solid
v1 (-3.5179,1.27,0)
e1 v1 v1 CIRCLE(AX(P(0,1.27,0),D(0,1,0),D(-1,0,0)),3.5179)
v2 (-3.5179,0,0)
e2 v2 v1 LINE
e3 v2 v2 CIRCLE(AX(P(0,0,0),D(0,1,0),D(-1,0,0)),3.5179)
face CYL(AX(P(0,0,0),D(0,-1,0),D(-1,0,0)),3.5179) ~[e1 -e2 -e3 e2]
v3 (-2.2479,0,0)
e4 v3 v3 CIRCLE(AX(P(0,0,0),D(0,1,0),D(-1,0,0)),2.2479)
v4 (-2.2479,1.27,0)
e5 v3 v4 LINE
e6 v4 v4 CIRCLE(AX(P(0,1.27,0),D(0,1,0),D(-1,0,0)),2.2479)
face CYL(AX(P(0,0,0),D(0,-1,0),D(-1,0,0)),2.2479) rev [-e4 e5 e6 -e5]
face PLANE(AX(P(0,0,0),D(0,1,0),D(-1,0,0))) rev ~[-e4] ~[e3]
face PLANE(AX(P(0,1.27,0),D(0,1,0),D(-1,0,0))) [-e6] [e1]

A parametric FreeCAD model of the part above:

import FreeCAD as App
import Part
import Sketcher
Q = App.Units.Quantity

doc = App.newDocument("Part")
body = doc.addObject("PartDesign::Body", "Body")

# Sketch on XZ plane
sketch1 = body.newObject("Sketcher::SketchObject", "Sketch")
sketch1.AttachmentSupport = (doc.getObject("XZ_Plane"), [""])
sketch1.MapMode = "FlatFace"
sketch1.addGeometry([
    Part.Circle(App.Vector(0, 0, 0), App.Vector(0, 0, 1), 3.5),
    Part.Circle(App.Vector(0, 0, 0), App.Vector(0, 0, 1), 2.2),
], False)
sketch1.addConstraint([
    Sketcher.Constraint("Coincident", 0, 3, -1, 1),
    Sketcher.Constraint("Coincident", 1, 3, -1, 1),
    Sketcher.Constraint("Diameter", 1, Q("0.177 in")),
    Sketcher.Constraint("Diameter", 0, Q("0.277 in")),
])
pad1 = body.newObject("PartDesign::Pad", "Pad")
pad1.Profile = sketch1
pad1.Length = Q("0.05 in")
pad1.Reversed = True

doc.recompute()
